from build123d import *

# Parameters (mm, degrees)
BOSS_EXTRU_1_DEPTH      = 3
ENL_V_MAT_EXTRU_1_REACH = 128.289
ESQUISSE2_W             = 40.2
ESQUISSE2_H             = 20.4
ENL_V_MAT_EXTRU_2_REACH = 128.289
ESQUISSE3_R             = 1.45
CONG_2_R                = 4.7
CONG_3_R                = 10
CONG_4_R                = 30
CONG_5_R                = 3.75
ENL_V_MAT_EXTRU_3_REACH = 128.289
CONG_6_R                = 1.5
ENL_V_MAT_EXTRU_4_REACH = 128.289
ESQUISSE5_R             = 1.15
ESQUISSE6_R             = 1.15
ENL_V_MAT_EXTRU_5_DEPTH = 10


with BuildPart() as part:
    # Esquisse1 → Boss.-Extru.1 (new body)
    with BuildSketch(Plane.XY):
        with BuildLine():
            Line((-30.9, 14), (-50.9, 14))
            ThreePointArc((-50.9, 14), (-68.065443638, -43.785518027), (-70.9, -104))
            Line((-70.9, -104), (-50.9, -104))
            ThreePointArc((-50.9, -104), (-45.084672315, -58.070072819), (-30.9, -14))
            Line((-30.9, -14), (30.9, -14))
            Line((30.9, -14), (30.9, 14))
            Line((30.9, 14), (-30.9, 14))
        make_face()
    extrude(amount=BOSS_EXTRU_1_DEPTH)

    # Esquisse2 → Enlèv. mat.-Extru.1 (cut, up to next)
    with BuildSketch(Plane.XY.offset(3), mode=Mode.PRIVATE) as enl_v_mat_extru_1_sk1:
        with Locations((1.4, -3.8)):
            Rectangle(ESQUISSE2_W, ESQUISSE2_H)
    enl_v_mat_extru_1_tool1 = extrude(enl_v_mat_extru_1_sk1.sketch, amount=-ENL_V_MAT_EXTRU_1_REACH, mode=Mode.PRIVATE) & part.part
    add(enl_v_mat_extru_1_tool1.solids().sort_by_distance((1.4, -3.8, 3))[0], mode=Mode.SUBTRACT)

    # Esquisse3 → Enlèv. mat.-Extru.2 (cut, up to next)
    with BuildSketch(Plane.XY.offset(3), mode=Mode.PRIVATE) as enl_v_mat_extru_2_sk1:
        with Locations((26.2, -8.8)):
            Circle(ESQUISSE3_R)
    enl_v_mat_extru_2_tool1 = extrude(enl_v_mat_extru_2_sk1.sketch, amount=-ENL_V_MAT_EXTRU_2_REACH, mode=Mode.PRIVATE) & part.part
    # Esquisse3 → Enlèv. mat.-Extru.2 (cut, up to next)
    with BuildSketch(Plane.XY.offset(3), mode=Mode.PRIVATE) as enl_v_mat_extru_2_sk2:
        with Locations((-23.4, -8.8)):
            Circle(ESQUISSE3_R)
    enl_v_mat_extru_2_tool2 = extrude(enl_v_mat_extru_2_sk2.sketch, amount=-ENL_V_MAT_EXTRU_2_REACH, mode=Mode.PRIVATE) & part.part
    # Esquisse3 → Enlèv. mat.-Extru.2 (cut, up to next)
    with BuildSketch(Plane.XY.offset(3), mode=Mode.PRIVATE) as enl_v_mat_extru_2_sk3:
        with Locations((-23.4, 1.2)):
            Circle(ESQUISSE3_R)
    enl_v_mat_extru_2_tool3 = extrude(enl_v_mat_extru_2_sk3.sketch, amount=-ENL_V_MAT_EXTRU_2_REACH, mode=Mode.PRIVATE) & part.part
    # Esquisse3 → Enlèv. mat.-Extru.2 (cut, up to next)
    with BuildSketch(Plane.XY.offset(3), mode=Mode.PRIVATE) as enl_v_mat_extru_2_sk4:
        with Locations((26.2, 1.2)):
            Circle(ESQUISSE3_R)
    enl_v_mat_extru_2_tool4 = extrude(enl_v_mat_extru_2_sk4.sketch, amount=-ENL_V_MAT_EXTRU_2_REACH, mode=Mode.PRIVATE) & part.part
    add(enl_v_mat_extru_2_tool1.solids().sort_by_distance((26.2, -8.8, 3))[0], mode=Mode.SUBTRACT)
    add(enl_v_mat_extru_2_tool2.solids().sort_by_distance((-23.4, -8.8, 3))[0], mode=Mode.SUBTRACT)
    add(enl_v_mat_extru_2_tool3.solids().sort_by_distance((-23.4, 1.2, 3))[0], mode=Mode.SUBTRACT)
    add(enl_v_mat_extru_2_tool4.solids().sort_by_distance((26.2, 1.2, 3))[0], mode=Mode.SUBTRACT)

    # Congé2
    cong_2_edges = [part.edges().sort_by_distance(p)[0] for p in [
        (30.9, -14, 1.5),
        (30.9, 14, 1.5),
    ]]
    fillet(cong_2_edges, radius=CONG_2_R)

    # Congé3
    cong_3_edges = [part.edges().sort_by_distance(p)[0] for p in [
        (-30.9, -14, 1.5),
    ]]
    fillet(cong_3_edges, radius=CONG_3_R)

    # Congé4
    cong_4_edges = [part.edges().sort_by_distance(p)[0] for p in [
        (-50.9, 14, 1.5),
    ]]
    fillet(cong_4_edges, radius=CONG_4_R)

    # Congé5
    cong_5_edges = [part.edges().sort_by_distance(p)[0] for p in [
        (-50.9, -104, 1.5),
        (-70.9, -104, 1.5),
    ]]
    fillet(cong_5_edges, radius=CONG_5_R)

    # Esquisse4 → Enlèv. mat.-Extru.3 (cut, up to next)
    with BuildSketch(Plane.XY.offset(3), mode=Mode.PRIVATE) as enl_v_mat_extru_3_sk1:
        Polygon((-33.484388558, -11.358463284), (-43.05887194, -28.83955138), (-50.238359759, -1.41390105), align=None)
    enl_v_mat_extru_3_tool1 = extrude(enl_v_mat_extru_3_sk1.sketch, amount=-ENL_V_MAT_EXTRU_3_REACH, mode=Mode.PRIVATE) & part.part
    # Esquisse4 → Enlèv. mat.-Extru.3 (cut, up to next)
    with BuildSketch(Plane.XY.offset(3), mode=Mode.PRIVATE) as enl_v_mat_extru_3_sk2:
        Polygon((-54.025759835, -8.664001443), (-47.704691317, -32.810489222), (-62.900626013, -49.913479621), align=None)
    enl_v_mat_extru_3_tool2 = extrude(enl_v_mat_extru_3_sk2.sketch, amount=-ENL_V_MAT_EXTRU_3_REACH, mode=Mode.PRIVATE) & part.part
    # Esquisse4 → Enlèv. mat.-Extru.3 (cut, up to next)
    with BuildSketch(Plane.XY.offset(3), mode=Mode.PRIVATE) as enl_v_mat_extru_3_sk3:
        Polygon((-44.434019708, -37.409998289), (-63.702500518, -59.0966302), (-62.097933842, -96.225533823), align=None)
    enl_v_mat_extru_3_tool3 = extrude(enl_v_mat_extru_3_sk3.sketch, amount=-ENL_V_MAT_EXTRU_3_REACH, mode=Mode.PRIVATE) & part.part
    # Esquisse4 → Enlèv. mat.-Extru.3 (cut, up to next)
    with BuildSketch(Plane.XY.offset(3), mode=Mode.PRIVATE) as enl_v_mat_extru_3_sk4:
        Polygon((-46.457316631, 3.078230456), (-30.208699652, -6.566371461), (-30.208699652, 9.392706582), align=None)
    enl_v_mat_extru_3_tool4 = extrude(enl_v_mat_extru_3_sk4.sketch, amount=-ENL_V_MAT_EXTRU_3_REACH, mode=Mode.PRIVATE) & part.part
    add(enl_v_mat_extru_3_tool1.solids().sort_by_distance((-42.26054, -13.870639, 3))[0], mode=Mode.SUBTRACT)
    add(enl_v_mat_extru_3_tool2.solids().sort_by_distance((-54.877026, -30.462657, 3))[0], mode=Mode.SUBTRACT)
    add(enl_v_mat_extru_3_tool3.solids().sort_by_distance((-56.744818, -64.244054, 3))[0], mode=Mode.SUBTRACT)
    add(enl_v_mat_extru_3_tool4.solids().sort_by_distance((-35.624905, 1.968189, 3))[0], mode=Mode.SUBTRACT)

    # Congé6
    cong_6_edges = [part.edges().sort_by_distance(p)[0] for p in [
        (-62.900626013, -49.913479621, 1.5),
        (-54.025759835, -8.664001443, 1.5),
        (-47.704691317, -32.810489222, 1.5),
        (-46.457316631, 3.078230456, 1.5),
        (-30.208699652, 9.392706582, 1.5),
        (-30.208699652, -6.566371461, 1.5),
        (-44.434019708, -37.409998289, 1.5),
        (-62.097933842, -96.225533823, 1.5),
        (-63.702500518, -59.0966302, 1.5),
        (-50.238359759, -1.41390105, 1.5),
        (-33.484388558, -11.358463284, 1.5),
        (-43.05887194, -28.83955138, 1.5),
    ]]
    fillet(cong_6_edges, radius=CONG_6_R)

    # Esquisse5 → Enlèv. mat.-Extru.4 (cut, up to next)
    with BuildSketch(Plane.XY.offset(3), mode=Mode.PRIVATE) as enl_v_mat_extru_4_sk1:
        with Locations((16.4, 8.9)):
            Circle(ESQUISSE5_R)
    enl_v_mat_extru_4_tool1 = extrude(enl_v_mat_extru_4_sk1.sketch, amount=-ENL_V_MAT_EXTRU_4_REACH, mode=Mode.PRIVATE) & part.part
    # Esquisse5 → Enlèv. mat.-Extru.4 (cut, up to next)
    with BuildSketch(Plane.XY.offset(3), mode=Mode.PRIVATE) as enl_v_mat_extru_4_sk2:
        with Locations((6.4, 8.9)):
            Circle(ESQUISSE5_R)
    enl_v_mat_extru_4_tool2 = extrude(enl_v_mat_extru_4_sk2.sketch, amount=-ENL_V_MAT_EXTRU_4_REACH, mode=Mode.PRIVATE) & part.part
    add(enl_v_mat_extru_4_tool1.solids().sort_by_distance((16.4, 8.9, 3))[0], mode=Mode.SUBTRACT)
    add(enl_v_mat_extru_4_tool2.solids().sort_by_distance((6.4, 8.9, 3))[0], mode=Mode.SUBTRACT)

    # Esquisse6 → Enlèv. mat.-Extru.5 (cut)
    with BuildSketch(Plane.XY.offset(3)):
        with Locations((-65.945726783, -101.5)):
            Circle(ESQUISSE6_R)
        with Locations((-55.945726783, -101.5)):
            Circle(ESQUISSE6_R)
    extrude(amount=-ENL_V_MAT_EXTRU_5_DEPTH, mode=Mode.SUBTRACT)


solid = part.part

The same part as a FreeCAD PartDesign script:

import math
import FreeCAD as App
import Part
import Sketcher
from FreeCAD import Vector
Q = App.Units.Quantity


def edges_at(feature, points):
    """Names of the edges that pass closest to the given points."""
    edges = feature.Shape.Edges
    near = lambda p: min(range(len(edges)), key=lambda i: edges[i].distToShape(Part.Vertex(*p))[0])
    return sorted({f"Edge{near(p) + 1}" for p in points})


def add_polygon(sketch, points):
    """Adds a closed chain of lines whose ends are joined by coincident constraints."""
    first, n = sketch.GeometryCount, len(points)
    for a, b in zip(points, points[1:] + points[:1]):
        sketch.addGeometry(Part.LineSegment(App.Vector(*a, 0), App.Vector(*b, 0)), False)
    for i in range(n):
        sketch.addConstraint(Sketcher.Constraint("Coincident", first + i, 2, first + (i + 1) % n, 1))

doc = App.newDocument("Part")
params = doc.addObject("Spreadsheet::Sheet", "Params")
for row, (alias, value) in enumerate([
    ("sketch1_radius", "250 mm"),
    ("sketch1_width", "20 mm"),
    ("sketch1_height", "28 mm"),
    ("sketch1_width2", "61.8 mm"),
    ("sketch1_width3", "81.8 mm"),
    ("pad1_length", "3 mm"),
    ("sketch2_width", "40.2 mm"),
    ("sketch2_height", "20.4 mm"),
    ("sketch3_diameter", "2.9 mm"),
    ("sketch4_diameter", "2.9 mm"),
    ("sketch5_diameter", "2.9 mm"),
    ("sketch6_diameter", "2.9 mm"),
    ("fillet_radius", "4.7 mm"),
    ("fillet2_radius", "10 mm"),
    ("fillet3_radius", "30 mm"),
    ("fillet4_radius", "3.75 mm"),
    ("fillet5_radius", "1.5 mm"),
    ("sketch11_diameter", "2.3 mm"),
    ("sketch12_diameter", "2.3 mm"),
    ("sketch13_diameter", "2.3 mm"),
    ("pocket12_length", "10 mm"),
], start=1):
    params.set(f"A{row}", alias)
    params.set(f"B{row}", "=" + value)
    params.setAlias(f"B{row}", alias)

body = doc.addObject("PartDesign::Body", "Body")

# Sketch on XY plane
sketch1 = body.newObject("Sketcher::SketchObject", "Sketch")
sketch1.AttachmentSupport = (doc.getObject("XY_Plane"), [""])
sketch1.MapMode = "FlatFace"
sketch1.addGeometry([
    Part.ArcOfCircle(Part.Circle(Vector(178, -86, 0), Vector(0, 0, 1), 250), math.radians(157), math.radians(184)),  # 0
    Part.LineSegment(Vector(-71, -104, 0), Vector(-51, -104, 0)),  # 1
    Part.ArcOfCircle(Part.Circle(Vector(199, -112, 0), Vector(0, 0, 1), 250), math.radians(157), math.radians(178)),  # 2
    Part.LineSegment(Vector(-31, -14, 0), Vector(31, -14, 0)),  # 3
    Part.LineSegment(Vector(31, -14, 0), Vector(31, 14, 0)),  # 4
    Part.LineSegment(Vector(31, 14, 0), Vector(-51, 14, 0)),  # 5
], False)
sketch1.addConstraint([
    Sketcher.Constraint("Coincident", 0, 2, 1, 1),
    Sketcher.Constraint("Coincident", 1, 2, 2, 2),
    Sketcher.Constraint("Coincident", 2, 1, 3, 1),
    Sketcher.Constraint("Coincident", 3, 2, 4, 1),
    Sketcher.Constraint("Coincident", 4, 2, 5, 1),
    Sketcher.Constraint("Coincident", 5, 2, 0, 1),
    Sketcher.Constraint("Horizontal", 1),
    Sketcher.Constraint("Horizontal", 3),
    Sketcher.Constraint("Vertical", 4),
    Sketcher.Constraint("Horizontal", 5),
    Sketcher.Constraint("Equal", 0, 2),
    Sketcher.Constraint("Symmetric", 2, 1, 4, 2, -1, 1),
    Sketcher.Constraint("Vertical", 1, 2, 5, 2),
    Sketcher.Constraint("Radius", 0, Q("250 mm")),
    Sketcher.Constraint("DistanceX", 1, 1, 1, 2, Q("20 mm")),
    Sketcher.Constraint("DistanceY", 4, 1, 4, 2, Q("28 mm")),
    Sketcher.Constraint("DistanceX", 3, 1, 3, 2, Q("61.8 mm")),
    Sketcher.Constraint("DistanceX", 5, 2, 5, 1, Q("81.8 mm")),
    Sketcher.Constraint("DistanceY", 0, 2, -1, 1, Q("104 mm")),
])
sketch1.setExpression("Constraints[13]", "Params.sketch1_radius")
sketch1.setExpression("Constraints[14]", "Params.sketch1_width")
sketch1.setExpression("Constraints[15]", "Params.sketch1_height")
sketch1.setExpression("Constraints[16]", "Params.sketch1_width2")
sketch1.setExpression("Constraints[17]", "Params.sketch1_width3")
pad1 = body.newObject("PartDesign::Pad", "Pad")
pad1.Profile = sketch1
pad1.setExpression("Length", "Params.pad1_length")

# Sketch on XY plane
sketch2 = body.newObject("Sketcher::SketchObject", "Sketch001")
sketch2.AttachmentSupport = (doc.getObject("XY_Plane"), [""])
sketch2.MapMode = "FlatFace"
sketch2.AttachmentOffset = App.Placement(Vector(0, 0, 3), App.Rotation())
add_polygon(sketch2, [(-19, 6), (-19, -14), (22, -14), (22, 6)])  # lines 0-3
sketch2.addConstraint([
    Sketcher.Constraint("Vertical", 0),
    Sketcher.Constraint("Horizontal", 1),
    Sketcher.Constraint("Vertical", 2),
    Sketcher.Constraint("Horizontal", 3),
    Sketcher.Constraint("DistanceX", 1, 1, 1, 2, Q("40.2 mm")),
    Sketcher.Constraint("DistanceY", 0, 2, 0, 1, Q("20.4 mm")),
    Sketcher.Constraint("DistanceY", 0, 2, -1, 1, Q("14 mm")),
    Sketcher.Constraint("DistanceX", 0, 2, -1, 1, Q("18.7 mm")),
])
sketch2.setExpression("Constraints[8]", "Params.sketch2_width")
sketch2.setExpression("Constraints[9]", "Params.sketch2_height")
pocket1 = body.newObject("PartDesign::Pocket", "Pocket")
pocket1.Profile = sketch2
pocket1.Type = "UpToFirst"

# Sketch on XY plane
sketch3 = body.newObject("Sketcher::SketchObject", "Sketch002")
sketch3.AttachmentSupport = (doc.getObject("XY_Plane"), [""])
sketch3.MapMode = "FlatFace"
sketch3.AttachmentOffset = App.Placement(Vector(0, 0, 3), App.Rotation())
sketch3.addGeometry(Part.Circle(Vector(26.2, -8.8, 0), Vector(0, 0, 1), 1.4), False)
sketch3.addConstraint([
    Sketcher.Constraint("Diameter", 0, Q("2.9 mm")),
    Sketcher.Constraint("DistanceX", -1, 1, 0, 3, Q("26.2 mm")),
    Sketcher.Constraint("DistanceY", 0, 3, -1, 1, Q("8.8 mm")),
])
sketch3.setExpression("Constraints[0]", "Params.sketch3_diameter")
pocket2 = body.newObject("PartDesign::Pocket", "Pocket001")
pocket2.Profile = sketch3
pocket2.Type = "UpToFirst"

# Sketch on XY plane
sketch4 = body.newObject("Sketcher::SketchObject", "Sketch003")
sketch4.AttachmentSupport = (doc.getObject("XY_Plane"), [""])
sketch4.MapMode = "FlatFace"
sketch4.AttachmentOffset = App.Placement(Vector(0, 0, 3), App.Rotation())
sketch4.addGeometry(Part.Circle(Vector(-23.4, -8.8, 0), Vector(0, 0, 1), 1.4), False)
sketch4.addConstraint([
    Sketcher.Constraint("Diameter", 0, Q("2.9 mm")),
    Sketcher.Constraint("DistanceX", 0, 3, -1, 1, Q("23.4 mm")),
    Sketcher.Constraint("DistanceY", 0, 3, -1, 1, Q("8.8 mm")),
])
sketch4.setExpression("Constraints[0]", "Params.sketch4_diameter")
pocket3 = body.newObject("PartDesign::Pocket", "Pocket002")
pocket3.Profile = sketch4
pocket3.Type = "UpToFirst"

# Sketch on XY plane
sketch5 = body.newObject("Sketcher::SketchObject", "Sketch004")
sketch5.AttachmentSupport = (doc.getObject("XY_Plane"), [""])
sketch5.MapMode = "FlatFace"
sketch5.AttachmentOffset = App.Placement(Vector(0, 0, 3), App.Rotation())
sketch5.addGeometry(Part.Circle(Vector(-23.4, 1.2, 0), Vector(0, 0, 1), 1.4), False)
sketch5.addConstraint([
    Sketcher.Constraint("Diameter", 0, Q("2.9 mm")),
    Sketcher.Constraint("DistanceX", 0, 3, -1, 1, Q("23.4 mm")),
    Sketcher.Constraint("DistanceY", -1, 1, 0, 3, Q("1.2 mm")),
])
sketch5.setExpression("Constraints[0]", "Params.sketch5_diameter")
pocket4 = body.newObject("PartDesign::Pocket", "Pocket003")
pocket4.Profile = sketch5
pocket4.Type = "UpToFirst"

# Sketch on XY plane
sketch6 = body.newObject("Sketcher::SketchObject", "Sketch005")
sketch6.AttachmentSupport = (doc.getObject("XY_Plane"), [""])
sketch6.MapMode = "FlatFace"
sketch6.AttachmentOffset = App.Placement(Vector(0, 0, 3), App.Rotation())
sketch6.addGeometry(Part.Circle(Vector(26.2, 1.2, 0), Vector(0, 0, 1), 1.4), False)
sketch6.addConstraint([
    Sketcher.Constraint("Diameter", 0, Q("2.9 mm")),
    Sketcher.Constraint("DistanceX", -1, 1, 0, 3, Q("26.2 mm")),
    Sketcher.Constraint("DistanceY", -1, 1, 0, 3, Q("1.2 mm")),
])
sketch6.setExpression("Constraints[0]", "Params.sketch6_diameter")
pocket5 = body.newObject("PartDesign::Pocket", "Pocket004")
pocket5.Profile = sketch6
pocket5.Type = "UpToFirst"
doc.recompute()

fillet = body.newObject("PartDesign::Fillet", "Fillet")
fillet.Base = (pocket5, edges_at(pocket5, [(30.9, -14, 1.5), (30.9, 14, 1.5)]))
fillet.setExpression("Radius", "Params.fillet_radius")
doc.recompute()

fillet2 = body.newObject("PartDesign::Fillet", "Fillet001")
fillet2.Base = (fillet, edges_at(fillet, [(-30.9, -14, 1.5)]))
fillet2.setExpression("Radius", "Params.fillet2_radius")
doc.recompute()

fillet3 = body.newObject("PartDesign::Fillet", "Fillet002")
fillet3.Base = (fillet2, edges_at(fillet2, [(-50.9, 14, 1.5)]))
fillet3.setExpression("Radius", "Params.fillet3_radius")
doc.recompute()

fillet4 = body.newObject("PartDesign::Fillet", "Fillet003")
fillet4.Base = (fillet3, edges_at(fillet3, [(-50.9, -104, 1.5), (-70.9, -104, 1.5)]))
fillet4.setExpression("Radius", "Params.fillet4_radius")

# Sketch on XY plane
sketch7 = body.newObject("Sketcher::SketchObject", "Sketch006")
sketch7.AttachmentSupport = (doc.getObject("XY_Plane"), [""])
sketch7.MapMode = "FlatFace"
sketch7.AttachmentOffset = App.Placement(Vector(0, 0, 3), App.Rotation())
add_polygon(sketch7, [(-43, -29), (-33, -11), (-50, -1)])  # lines 0-2
sketch7.addConstraint([
    Sketcher.Constraint("DistanceY", 1, 2, -1, 1, Q("1.413901 mm")),
    Sketcher.Constraint("Distance", 0, Q("19.931362 mm")),
    Sketcher.Constraint("DistanceX", 0, 2, -1, 1, Q("33.484389 mm")),
    Sketcher.Constraint("DistanceX", 1, 2, -1, 1, Q("50.23836 mm")),
    Sketcher.Constraint("DistanceX", 2, 2, -1, 1, Q("43.058872 mm")),
    Sketcher.Constraint("DistanceY", 2, 2, -1, 1, Q("28.839551 mm")),
])
pocket6 = body.newObject("PartDesign::Pocket", "Pocket005")
pocket6.Profile = sketch7
pocket6.Type = "UpToFirst"

# Sketch on XY plane
sketch8 = body.newObject("Sketcher::SketchObject", "Sketch007")
sketch8.AttachmentSupport = (doc.getObject("XY_Plane"), [""])
sketch8.MapMode = "FlatFace"
sketch8.AttachmentOffset = App.Placement(Vector(0, 0, 3), App.Rotation())
add_polygon(sketch8, [(-48, -33), (-54, -9), (-63, -50)])  # lines 0-2
sketch8.addConstraint([
    Sketcher.Constraint("DistanceY", 0, 2, -1, 1, Q("8.664001 mm")),
    Sketcher.Constraint("DistanceX", 0, 2, -1, 1, Q("54.02576 mm")),
    Sketcher.Constraint("DistanceY", 1, 2, -1, 1, Q("49.91348 mm")),
    Sketcher.Constraint("DistanceX", 2, 2, -1, 1, Q("47.704691 mm")),
    Sketcher.Constraint("DistanceY", 2, 2, -1, 1, Q("32.810489 mm")),
    Sketcher.Constraint("Distance", 1, Q("42.193396 mm")),
])
pocket7 = body.newObject("PartDesign::Pocket", "Pocket006")
pocket7.Profile = sketch8
pocket7.Type = "UpToFirst"

# Sketch on XY plane
sketch9 = body.newObject("Sketcher::SketchObject", "Sketch008")
sketch9.AttachmentSupport = (doc.getObject("XY_Plane"), [""])
sketch9.MapMode = "FlatFace"
sketch9.AttachmentOffset = App.Placement(Vector(0, 0, 3), App.Rotation())
add_polygon(sketch9, [(-44, -37), (-64, -59), (-62, -96)])  # lines 0-2
sketch9.addConstraint([
    Sketcher.Constraint("DistanceY", 2, 2, -1, 1, Q("37.409998 mm")),
    Sketcher.Constraint("DistanceX", 0, 2, -1, 1, Q("63.702501 mm")),
    Sketcher.Constraint("Distance", 1, Q("37.163559 mm")),
    Sketcher.Constraint("DistanceY", 0, 2, -1, 1, Q("59.09663 mm")),
    Sketcher.Constraint("DistanceX", 2, 2, -1, 1, Q("44.43402 mm")),
    Sketcher.Constraint("Distance", 2, Q("61.410757 mm")),
])
pocket8 = body.newObject("PartDesign::Pocket", "Pocket007")
pocket8.Profile = sketch9
pocket8.Type = "UpToFirst"

# Sketch on XY plane
sketch10 = body.newObject("Sketcher::SketchObject", "Sketch009")
sketch10.AttachmentSupport = (doc.getObject("XY_Plane"), [""])
sketch10.MapMode = "FlatFace"
sketch10.AttachmentOffset = App.Placement(Vector(0, 0, 3), App.Rotation())
add_polygon(sketch10, [(-46, 3), (-30, -7), (-30, 9)])  # lines 0-2
sketch10.addConstraint([
    Sketcher.Constraint("Vertical", 1),
    Sketcher.Constraint("DistanceY", 1, 1, 1, 2, Q("15.959078 mm")),
    Sketcher.Constraint("DistanceX", 0, 2, -1, 1, Q("30.2087 mm")),
    Sketcher.Constraint("DistanceY", 0, 2, 2, 2, Q("9.644602 mm")),
    Sketcher.Constraint("DistanceY", 0, 2, -1, 1, Q("6.566371 mm")),
    Sketcher.Constraint("Distance", 0, Q("18.895394 mm")),
])
pocket9 = body.newObject("PartDesign::Pocket", "Pocket008")
pocket9.Profile = sketch10
pocket9.Type = "UpToFirst"
doc.recompute()

fillet5 = body.newObject("PartDesign::Fillet", "Fillet004")
fillet5.Base = (pocket9, edges_at(pocket9, [
    (-62.901, -49.913, 1.5),
    (-54.026, -8.664, 1.5),
    (-47.705, -32.81, 1.5),
    (-46.457, 3.078, 1.5),
    (-30.209, 9.393, 1.5),
    (-30.209, -6.566, 1.5),
    (-44.434, -37.41, 1.5),
    (-62.098, -96.226, 1.5),
    (-63.703, -59.097, 1.5),
    (-50.238, -1.414, 1.5),
    (-33.484, -11.358, 1.5),
    (-43.059, -28.84, 1.5),
]))
fillet5.setExpression("Radius", "Params.fillet5_radius")

# Sketch on XY plane
sketch11 = body.newObject("Sketcher::SketchObject", "Sketch010")
sketch11.AttachmentSupport = (doc.getObject("XY_Plane"), [""])
sketch11.MapMode = "FlatFace"
sketch11.AttachmentOffset = App.Placement(Vector(0, 0, 3), App.Rotation())
sketch11.addGeometry(Part.Circle(Vector(16.4, 8.9, 0), Vector(0, 0, 1), 1.1), False)
sketch11.addConstraint([
    Sketcher.Constraint("Diameter", 0, Q("2.3 mm")),
    Sketcher.Constraint("DistanceX", -1, 1, 0, 3, Q("16.4 mm")),
    Sketcher.Constraint("DistanceY", -1, 1, 0, 3, Q("8.9 mm")),
])
sketch11.setExpression("Constraints[0]", "Params.sketch11_diameter")
pocket10 = body.newObject("PartDesign::Pocket", "Pocket009")
pocket10.Profile = sketch11
pocket10.Type = "UpToFirst"

# Sketch on XY plane
sketch12 = body.newObject("Sketcher::SketchObject", "Sketch011")
sketch12.AttachmentSupport = (doc.getObject("XY_Plane"), [""])
sketch12.MapMode = "FlatFace"
sketch12.AttachmentOffset = App.Placement(Vector(0, 0, 3), App.Rotation())
sketch12.addGeometry(Part.Circle(Vector(6.4, 8.9, 0), Vector(0, 0, 1), 1.1), False)
sketch12.addConstraint([
    Sketcher.Constraint("Diameter", 0, Q("2.3 mm")),
    Sketcher.Constraint("DistanceX", -1, 1, 0, 3, Q("6.4 mm")),
    Sketcher.Constraint("DistanceY", -1, 1, 0, 3, Q("8.9 mm")),
])
sketch12.setExpression("Constraints[0]", "Params.sketch12_diameter")
pocket11 = body.newObject("PartDesign::Pocket", "Pocket010")
pocket11.Profile = sketch12
pocket11.Type = "UpToFirst"

# Sketch on XY plane
sketch13 = body.newObject("Sketcher::SketchObject", "Sketch012")
sketch13.AttachmentSupport = (doc.getObject("XY_Plane"), [""])
sketch13.MapMode = "FlatFace"
sketch13.AttachmentOffset = App.Placement(Vector(0, 0, 3), App.Rotation())
sketch13.addGeometry([
    Part.Circle(Vector(-65.9, -101.5, 0), Vector(0, 0, 1), 1.1),
    Part.Circle(Vector(-55.9, -101.5, 0), Vector(0, 0, 1), 1.1),
], False)
sketch13.addConstraint([
    Sketcher.Constraint("Equal", 0, 1),
    Sketcher.Constraint("Horizontal", 0, 3, 1, 3),
    Sketcher.Constraint("Diameter", 0, Q("2.3 mm")),
    Sketcher.Constraint("DistanceX", 0, 3, 1, 3, Q("10 mm")),
    Sketcher.Constraint("DistanceY", 0, 3, -1, 1, Q("101.5 mm")),
    Sketcher.Constraint("DistanceX", 0, 3, -1, 1, Q("65.945727 mm")),
])
sketch13.setExpression("Constraints[2]", "Params.sketch13_diameter")
pocket12 = body.newObject("PartDesign::Pocket", "Pocket011")
pocket12.Profile = sketch13
pocket12.setExpression("Length", "Params.pocket12_length")

doc.recompute()
